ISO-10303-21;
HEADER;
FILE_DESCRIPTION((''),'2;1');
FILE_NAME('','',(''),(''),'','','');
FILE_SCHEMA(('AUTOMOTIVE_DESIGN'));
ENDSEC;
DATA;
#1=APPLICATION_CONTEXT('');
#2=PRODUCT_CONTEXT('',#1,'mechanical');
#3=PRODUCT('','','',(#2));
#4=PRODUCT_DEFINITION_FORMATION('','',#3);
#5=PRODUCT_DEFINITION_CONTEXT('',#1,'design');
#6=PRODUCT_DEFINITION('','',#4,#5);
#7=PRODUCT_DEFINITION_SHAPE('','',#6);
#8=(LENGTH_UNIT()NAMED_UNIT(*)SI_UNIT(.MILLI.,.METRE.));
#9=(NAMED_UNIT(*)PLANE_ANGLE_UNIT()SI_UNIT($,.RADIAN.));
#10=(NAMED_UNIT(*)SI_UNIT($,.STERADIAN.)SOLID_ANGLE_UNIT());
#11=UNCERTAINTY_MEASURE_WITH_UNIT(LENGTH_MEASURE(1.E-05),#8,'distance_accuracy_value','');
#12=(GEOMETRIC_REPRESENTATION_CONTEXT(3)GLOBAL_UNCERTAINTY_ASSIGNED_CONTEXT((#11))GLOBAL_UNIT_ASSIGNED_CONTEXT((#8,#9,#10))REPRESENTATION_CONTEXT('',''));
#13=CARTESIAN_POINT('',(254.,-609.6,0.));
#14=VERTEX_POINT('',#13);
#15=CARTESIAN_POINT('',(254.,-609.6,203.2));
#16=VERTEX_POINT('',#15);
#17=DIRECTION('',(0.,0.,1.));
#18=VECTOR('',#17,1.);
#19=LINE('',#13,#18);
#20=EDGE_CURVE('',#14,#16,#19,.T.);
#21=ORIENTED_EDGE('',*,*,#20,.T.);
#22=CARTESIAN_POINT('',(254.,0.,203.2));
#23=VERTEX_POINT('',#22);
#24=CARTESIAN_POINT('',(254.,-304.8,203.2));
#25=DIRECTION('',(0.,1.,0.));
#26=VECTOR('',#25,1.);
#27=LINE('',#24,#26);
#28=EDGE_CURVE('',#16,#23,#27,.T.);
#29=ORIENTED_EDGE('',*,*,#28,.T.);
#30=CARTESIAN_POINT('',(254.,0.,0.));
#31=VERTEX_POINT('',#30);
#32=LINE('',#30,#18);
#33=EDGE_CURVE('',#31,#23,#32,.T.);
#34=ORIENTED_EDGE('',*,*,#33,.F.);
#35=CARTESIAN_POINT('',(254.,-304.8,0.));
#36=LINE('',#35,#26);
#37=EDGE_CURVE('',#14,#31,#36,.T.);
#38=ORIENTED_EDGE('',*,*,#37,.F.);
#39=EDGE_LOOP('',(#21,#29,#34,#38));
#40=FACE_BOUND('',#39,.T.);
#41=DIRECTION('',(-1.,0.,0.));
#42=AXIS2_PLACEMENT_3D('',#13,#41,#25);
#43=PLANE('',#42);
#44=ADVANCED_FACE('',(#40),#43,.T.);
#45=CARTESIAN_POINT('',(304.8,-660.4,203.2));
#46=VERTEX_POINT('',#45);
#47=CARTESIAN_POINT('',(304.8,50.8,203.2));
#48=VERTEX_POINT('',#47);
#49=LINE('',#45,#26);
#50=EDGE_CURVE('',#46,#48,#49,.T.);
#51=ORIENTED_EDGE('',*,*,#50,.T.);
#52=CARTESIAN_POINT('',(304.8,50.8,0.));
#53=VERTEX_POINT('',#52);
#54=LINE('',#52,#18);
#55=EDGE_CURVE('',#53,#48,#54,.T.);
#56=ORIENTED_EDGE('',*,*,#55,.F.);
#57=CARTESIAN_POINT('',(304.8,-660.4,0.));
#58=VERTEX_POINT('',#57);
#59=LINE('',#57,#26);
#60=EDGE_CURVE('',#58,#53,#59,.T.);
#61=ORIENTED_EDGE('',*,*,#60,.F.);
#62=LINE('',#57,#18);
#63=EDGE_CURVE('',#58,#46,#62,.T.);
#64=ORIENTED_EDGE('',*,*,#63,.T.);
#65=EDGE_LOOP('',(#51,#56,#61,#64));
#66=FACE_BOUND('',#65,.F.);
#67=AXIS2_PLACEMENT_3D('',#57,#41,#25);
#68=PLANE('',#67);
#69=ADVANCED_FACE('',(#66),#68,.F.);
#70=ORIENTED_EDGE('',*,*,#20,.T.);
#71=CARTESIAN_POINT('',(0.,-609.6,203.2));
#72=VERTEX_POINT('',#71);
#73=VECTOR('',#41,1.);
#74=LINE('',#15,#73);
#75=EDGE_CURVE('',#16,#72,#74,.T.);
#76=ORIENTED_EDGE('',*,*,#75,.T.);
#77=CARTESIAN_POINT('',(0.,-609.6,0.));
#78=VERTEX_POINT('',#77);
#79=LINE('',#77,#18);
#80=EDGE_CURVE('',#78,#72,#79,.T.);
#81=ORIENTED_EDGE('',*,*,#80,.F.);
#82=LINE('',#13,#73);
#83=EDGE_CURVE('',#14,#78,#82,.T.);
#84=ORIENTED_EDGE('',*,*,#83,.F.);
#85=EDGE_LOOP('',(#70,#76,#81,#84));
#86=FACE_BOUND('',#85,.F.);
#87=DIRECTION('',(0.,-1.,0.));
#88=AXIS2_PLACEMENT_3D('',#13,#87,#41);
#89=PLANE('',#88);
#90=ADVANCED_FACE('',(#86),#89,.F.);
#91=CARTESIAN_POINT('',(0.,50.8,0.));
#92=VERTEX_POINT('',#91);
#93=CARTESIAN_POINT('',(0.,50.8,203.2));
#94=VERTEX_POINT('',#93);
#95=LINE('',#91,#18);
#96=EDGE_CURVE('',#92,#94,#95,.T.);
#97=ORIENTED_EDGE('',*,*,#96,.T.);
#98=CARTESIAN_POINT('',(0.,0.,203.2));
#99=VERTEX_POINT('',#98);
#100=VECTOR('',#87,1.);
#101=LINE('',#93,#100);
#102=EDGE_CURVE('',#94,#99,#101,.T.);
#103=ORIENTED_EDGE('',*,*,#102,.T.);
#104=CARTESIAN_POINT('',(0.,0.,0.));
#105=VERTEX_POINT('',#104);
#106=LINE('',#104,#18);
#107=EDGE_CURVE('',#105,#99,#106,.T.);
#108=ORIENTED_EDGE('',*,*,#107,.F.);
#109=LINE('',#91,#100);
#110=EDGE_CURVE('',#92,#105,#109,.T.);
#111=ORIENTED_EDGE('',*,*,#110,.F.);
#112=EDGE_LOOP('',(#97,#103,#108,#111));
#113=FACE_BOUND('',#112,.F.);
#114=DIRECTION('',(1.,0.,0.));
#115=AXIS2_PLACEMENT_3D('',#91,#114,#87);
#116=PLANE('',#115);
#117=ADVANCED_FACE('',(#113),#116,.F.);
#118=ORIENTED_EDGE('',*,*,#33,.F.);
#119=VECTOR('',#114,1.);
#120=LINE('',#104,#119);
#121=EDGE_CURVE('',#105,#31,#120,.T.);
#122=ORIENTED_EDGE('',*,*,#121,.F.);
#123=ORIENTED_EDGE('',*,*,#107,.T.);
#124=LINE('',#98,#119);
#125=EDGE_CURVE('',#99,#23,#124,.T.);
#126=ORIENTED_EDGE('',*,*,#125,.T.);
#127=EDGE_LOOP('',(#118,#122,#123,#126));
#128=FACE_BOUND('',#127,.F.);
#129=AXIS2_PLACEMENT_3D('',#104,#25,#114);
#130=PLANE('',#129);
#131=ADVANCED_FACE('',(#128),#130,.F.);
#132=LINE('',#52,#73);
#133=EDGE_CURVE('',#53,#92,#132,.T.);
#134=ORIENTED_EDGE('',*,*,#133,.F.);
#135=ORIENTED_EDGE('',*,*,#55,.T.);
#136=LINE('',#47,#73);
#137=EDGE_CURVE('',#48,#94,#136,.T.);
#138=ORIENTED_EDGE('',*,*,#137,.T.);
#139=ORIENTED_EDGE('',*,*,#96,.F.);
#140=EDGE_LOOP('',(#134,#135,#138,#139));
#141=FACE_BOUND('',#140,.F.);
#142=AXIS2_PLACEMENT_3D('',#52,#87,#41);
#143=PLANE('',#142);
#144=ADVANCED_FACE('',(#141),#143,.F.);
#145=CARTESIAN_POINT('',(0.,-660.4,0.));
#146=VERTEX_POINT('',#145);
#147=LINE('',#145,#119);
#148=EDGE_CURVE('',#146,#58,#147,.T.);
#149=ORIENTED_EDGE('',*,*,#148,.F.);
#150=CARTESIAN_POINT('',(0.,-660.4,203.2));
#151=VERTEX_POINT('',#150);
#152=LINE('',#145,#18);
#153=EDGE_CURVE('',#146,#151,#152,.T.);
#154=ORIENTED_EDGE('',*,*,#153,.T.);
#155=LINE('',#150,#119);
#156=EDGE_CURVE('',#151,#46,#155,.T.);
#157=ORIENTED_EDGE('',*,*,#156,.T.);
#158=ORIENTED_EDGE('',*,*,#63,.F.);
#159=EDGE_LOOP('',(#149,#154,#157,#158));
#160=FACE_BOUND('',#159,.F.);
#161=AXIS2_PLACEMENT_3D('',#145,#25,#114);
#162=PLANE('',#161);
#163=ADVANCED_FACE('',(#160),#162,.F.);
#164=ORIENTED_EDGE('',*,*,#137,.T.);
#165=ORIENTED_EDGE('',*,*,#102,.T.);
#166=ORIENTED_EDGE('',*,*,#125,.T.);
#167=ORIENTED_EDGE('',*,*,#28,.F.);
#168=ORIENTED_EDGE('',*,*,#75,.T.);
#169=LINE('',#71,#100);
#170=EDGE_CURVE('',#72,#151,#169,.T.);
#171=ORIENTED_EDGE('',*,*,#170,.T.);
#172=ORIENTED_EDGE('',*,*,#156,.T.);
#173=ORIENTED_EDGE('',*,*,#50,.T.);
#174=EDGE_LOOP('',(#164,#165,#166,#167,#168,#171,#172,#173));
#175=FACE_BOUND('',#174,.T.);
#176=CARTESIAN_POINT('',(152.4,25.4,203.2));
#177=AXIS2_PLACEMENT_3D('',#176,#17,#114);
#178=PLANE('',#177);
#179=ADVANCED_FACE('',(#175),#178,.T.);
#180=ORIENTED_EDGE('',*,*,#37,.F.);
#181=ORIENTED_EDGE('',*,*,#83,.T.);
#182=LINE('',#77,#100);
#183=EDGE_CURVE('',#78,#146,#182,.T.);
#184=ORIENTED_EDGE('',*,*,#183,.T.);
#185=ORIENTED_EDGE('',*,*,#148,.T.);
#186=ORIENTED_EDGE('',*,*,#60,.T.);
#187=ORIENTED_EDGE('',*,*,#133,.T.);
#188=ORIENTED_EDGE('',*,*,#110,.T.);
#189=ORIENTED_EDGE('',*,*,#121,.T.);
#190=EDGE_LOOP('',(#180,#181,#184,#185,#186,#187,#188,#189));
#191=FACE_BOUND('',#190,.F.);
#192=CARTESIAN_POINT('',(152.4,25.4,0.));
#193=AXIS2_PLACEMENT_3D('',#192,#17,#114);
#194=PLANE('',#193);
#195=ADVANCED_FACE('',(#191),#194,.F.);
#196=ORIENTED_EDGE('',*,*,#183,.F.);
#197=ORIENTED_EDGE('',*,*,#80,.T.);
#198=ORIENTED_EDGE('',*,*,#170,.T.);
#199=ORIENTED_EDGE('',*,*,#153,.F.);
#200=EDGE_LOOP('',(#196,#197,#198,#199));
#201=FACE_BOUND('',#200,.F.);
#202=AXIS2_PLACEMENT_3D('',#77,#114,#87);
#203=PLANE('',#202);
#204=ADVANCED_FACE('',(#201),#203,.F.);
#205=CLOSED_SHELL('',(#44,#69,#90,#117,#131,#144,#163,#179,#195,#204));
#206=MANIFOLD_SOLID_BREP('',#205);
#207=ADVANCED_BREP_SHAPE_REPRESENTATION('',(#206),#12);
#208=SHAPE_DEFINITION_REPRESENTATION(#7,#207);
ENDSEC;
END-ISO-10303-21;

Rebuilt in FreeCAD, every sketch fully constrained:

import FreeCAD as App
import Part
import Sketcher

V = App.Vector
Q = App.Units.Quantity


def add_polygon(sketch, points):
    """Adds a closed chain of lines whose ends are joined by coincident constraints."""
    first, n = sketch.GeometryCount, len(points)
    for a, b in zip(points, points[1:] + points[:1]):
        sketch.addGeometry(Part.LineSegment(App.Vector(*a, 0), App.Vector(*b, 0)), False)
    for i in range(n):
        sketch.addConstraint(Sketcher.Constraint("Coincident", first + i, 2, first + (i + 1) % n, 1))

doc = App.newDocument("Part")
params = doc.addObject("Spreadsheet::Sheet", "Params")
for row, (alias, value) in enumerate([
    ("sketch1_width", "10 in"),
    ("sketch1_width2", "12 in"),
    ("sketch1_height", "2 in"),
    ("sketch1_height2", "24 in"),
    ("pad1_length", "8 in"),
], start=1):
    params.set(f"A{row}", alias)
    params.set(f"B{row}", "=" + value)
    params.setAlias(f"B{row}", alias)

body = doc.addObject("PartDesign::Body", "Body")

# Sketch on XY plane
sketch1 = doc.addObject("Sketcher::SketchObject", "Sketch")
body.addObject(sketch1)
sketch1.AttachmentSupport = (doc.XY_Plane, [""])
sketch1.MapMode = "FlatFace"
add_polygon(sketch1, [(0, 50.8), (0, 0), (254, 0), (254, -609.6), (0, -609.6), (0, -660.4), (304.8, -660.4), (304.8, 50.8)])  # lines 0-7
sketch1.addConstraint([
    Sketcher.Constraint("Vertical", 0),
    Sketcher.Constraint("Horizontal", 1),
    Sketcher.Constraint("Vertical", 2),
    Sketcher.Constraint("Horizontal", 3),
    Sketcher.Constraint("Vertical", 4),
    Sketcher.Constraint("Horizontal", 5),
    Sketcher.Constraint("Vertical", 6),
    Sketcher.Constraint("Horizontal", 7),
    Sketcher.Constraint("Coincident", 0, 2, -1, 1),
    Sketcher.Constraint("PointOnObject", 3, 2, -2),
    Sketcher.Constraint("Equal", 0, 4),
    Sketcher.Constraint("DistanceX", 1, 1, 1, 2, Q("10 in")),
    Sketcher.Constraint("DistanceX", 5, 1, 5, 2, Q("12 in")),
    Sketcher.Constraint("DistanceY", 0, 2, 0, 1, Q("2 in")),
    Sketcher.Constraint("DistanceY", 2, 2, 2, 1, Q("24 in")),
])
sketch1.setExpression("Constraints[19]", "Params.sketch1_width")
sketch1.setExpression("Constraints[20]", "Params.sketch1_width2")
sketch1.setExpression("Constraints[21]", "Params.sketch1_height")
sketch1.setExpression("Constraints[22]", "Params.sketch1_height2")
pad1 = doc.addObject("PartDesign::Pad", "Pad")
body.addObject(pad1)
pad1.Profile = sketch1
pad1.setExpression("Length", "Params.pad1_length")

doc.recompute()
